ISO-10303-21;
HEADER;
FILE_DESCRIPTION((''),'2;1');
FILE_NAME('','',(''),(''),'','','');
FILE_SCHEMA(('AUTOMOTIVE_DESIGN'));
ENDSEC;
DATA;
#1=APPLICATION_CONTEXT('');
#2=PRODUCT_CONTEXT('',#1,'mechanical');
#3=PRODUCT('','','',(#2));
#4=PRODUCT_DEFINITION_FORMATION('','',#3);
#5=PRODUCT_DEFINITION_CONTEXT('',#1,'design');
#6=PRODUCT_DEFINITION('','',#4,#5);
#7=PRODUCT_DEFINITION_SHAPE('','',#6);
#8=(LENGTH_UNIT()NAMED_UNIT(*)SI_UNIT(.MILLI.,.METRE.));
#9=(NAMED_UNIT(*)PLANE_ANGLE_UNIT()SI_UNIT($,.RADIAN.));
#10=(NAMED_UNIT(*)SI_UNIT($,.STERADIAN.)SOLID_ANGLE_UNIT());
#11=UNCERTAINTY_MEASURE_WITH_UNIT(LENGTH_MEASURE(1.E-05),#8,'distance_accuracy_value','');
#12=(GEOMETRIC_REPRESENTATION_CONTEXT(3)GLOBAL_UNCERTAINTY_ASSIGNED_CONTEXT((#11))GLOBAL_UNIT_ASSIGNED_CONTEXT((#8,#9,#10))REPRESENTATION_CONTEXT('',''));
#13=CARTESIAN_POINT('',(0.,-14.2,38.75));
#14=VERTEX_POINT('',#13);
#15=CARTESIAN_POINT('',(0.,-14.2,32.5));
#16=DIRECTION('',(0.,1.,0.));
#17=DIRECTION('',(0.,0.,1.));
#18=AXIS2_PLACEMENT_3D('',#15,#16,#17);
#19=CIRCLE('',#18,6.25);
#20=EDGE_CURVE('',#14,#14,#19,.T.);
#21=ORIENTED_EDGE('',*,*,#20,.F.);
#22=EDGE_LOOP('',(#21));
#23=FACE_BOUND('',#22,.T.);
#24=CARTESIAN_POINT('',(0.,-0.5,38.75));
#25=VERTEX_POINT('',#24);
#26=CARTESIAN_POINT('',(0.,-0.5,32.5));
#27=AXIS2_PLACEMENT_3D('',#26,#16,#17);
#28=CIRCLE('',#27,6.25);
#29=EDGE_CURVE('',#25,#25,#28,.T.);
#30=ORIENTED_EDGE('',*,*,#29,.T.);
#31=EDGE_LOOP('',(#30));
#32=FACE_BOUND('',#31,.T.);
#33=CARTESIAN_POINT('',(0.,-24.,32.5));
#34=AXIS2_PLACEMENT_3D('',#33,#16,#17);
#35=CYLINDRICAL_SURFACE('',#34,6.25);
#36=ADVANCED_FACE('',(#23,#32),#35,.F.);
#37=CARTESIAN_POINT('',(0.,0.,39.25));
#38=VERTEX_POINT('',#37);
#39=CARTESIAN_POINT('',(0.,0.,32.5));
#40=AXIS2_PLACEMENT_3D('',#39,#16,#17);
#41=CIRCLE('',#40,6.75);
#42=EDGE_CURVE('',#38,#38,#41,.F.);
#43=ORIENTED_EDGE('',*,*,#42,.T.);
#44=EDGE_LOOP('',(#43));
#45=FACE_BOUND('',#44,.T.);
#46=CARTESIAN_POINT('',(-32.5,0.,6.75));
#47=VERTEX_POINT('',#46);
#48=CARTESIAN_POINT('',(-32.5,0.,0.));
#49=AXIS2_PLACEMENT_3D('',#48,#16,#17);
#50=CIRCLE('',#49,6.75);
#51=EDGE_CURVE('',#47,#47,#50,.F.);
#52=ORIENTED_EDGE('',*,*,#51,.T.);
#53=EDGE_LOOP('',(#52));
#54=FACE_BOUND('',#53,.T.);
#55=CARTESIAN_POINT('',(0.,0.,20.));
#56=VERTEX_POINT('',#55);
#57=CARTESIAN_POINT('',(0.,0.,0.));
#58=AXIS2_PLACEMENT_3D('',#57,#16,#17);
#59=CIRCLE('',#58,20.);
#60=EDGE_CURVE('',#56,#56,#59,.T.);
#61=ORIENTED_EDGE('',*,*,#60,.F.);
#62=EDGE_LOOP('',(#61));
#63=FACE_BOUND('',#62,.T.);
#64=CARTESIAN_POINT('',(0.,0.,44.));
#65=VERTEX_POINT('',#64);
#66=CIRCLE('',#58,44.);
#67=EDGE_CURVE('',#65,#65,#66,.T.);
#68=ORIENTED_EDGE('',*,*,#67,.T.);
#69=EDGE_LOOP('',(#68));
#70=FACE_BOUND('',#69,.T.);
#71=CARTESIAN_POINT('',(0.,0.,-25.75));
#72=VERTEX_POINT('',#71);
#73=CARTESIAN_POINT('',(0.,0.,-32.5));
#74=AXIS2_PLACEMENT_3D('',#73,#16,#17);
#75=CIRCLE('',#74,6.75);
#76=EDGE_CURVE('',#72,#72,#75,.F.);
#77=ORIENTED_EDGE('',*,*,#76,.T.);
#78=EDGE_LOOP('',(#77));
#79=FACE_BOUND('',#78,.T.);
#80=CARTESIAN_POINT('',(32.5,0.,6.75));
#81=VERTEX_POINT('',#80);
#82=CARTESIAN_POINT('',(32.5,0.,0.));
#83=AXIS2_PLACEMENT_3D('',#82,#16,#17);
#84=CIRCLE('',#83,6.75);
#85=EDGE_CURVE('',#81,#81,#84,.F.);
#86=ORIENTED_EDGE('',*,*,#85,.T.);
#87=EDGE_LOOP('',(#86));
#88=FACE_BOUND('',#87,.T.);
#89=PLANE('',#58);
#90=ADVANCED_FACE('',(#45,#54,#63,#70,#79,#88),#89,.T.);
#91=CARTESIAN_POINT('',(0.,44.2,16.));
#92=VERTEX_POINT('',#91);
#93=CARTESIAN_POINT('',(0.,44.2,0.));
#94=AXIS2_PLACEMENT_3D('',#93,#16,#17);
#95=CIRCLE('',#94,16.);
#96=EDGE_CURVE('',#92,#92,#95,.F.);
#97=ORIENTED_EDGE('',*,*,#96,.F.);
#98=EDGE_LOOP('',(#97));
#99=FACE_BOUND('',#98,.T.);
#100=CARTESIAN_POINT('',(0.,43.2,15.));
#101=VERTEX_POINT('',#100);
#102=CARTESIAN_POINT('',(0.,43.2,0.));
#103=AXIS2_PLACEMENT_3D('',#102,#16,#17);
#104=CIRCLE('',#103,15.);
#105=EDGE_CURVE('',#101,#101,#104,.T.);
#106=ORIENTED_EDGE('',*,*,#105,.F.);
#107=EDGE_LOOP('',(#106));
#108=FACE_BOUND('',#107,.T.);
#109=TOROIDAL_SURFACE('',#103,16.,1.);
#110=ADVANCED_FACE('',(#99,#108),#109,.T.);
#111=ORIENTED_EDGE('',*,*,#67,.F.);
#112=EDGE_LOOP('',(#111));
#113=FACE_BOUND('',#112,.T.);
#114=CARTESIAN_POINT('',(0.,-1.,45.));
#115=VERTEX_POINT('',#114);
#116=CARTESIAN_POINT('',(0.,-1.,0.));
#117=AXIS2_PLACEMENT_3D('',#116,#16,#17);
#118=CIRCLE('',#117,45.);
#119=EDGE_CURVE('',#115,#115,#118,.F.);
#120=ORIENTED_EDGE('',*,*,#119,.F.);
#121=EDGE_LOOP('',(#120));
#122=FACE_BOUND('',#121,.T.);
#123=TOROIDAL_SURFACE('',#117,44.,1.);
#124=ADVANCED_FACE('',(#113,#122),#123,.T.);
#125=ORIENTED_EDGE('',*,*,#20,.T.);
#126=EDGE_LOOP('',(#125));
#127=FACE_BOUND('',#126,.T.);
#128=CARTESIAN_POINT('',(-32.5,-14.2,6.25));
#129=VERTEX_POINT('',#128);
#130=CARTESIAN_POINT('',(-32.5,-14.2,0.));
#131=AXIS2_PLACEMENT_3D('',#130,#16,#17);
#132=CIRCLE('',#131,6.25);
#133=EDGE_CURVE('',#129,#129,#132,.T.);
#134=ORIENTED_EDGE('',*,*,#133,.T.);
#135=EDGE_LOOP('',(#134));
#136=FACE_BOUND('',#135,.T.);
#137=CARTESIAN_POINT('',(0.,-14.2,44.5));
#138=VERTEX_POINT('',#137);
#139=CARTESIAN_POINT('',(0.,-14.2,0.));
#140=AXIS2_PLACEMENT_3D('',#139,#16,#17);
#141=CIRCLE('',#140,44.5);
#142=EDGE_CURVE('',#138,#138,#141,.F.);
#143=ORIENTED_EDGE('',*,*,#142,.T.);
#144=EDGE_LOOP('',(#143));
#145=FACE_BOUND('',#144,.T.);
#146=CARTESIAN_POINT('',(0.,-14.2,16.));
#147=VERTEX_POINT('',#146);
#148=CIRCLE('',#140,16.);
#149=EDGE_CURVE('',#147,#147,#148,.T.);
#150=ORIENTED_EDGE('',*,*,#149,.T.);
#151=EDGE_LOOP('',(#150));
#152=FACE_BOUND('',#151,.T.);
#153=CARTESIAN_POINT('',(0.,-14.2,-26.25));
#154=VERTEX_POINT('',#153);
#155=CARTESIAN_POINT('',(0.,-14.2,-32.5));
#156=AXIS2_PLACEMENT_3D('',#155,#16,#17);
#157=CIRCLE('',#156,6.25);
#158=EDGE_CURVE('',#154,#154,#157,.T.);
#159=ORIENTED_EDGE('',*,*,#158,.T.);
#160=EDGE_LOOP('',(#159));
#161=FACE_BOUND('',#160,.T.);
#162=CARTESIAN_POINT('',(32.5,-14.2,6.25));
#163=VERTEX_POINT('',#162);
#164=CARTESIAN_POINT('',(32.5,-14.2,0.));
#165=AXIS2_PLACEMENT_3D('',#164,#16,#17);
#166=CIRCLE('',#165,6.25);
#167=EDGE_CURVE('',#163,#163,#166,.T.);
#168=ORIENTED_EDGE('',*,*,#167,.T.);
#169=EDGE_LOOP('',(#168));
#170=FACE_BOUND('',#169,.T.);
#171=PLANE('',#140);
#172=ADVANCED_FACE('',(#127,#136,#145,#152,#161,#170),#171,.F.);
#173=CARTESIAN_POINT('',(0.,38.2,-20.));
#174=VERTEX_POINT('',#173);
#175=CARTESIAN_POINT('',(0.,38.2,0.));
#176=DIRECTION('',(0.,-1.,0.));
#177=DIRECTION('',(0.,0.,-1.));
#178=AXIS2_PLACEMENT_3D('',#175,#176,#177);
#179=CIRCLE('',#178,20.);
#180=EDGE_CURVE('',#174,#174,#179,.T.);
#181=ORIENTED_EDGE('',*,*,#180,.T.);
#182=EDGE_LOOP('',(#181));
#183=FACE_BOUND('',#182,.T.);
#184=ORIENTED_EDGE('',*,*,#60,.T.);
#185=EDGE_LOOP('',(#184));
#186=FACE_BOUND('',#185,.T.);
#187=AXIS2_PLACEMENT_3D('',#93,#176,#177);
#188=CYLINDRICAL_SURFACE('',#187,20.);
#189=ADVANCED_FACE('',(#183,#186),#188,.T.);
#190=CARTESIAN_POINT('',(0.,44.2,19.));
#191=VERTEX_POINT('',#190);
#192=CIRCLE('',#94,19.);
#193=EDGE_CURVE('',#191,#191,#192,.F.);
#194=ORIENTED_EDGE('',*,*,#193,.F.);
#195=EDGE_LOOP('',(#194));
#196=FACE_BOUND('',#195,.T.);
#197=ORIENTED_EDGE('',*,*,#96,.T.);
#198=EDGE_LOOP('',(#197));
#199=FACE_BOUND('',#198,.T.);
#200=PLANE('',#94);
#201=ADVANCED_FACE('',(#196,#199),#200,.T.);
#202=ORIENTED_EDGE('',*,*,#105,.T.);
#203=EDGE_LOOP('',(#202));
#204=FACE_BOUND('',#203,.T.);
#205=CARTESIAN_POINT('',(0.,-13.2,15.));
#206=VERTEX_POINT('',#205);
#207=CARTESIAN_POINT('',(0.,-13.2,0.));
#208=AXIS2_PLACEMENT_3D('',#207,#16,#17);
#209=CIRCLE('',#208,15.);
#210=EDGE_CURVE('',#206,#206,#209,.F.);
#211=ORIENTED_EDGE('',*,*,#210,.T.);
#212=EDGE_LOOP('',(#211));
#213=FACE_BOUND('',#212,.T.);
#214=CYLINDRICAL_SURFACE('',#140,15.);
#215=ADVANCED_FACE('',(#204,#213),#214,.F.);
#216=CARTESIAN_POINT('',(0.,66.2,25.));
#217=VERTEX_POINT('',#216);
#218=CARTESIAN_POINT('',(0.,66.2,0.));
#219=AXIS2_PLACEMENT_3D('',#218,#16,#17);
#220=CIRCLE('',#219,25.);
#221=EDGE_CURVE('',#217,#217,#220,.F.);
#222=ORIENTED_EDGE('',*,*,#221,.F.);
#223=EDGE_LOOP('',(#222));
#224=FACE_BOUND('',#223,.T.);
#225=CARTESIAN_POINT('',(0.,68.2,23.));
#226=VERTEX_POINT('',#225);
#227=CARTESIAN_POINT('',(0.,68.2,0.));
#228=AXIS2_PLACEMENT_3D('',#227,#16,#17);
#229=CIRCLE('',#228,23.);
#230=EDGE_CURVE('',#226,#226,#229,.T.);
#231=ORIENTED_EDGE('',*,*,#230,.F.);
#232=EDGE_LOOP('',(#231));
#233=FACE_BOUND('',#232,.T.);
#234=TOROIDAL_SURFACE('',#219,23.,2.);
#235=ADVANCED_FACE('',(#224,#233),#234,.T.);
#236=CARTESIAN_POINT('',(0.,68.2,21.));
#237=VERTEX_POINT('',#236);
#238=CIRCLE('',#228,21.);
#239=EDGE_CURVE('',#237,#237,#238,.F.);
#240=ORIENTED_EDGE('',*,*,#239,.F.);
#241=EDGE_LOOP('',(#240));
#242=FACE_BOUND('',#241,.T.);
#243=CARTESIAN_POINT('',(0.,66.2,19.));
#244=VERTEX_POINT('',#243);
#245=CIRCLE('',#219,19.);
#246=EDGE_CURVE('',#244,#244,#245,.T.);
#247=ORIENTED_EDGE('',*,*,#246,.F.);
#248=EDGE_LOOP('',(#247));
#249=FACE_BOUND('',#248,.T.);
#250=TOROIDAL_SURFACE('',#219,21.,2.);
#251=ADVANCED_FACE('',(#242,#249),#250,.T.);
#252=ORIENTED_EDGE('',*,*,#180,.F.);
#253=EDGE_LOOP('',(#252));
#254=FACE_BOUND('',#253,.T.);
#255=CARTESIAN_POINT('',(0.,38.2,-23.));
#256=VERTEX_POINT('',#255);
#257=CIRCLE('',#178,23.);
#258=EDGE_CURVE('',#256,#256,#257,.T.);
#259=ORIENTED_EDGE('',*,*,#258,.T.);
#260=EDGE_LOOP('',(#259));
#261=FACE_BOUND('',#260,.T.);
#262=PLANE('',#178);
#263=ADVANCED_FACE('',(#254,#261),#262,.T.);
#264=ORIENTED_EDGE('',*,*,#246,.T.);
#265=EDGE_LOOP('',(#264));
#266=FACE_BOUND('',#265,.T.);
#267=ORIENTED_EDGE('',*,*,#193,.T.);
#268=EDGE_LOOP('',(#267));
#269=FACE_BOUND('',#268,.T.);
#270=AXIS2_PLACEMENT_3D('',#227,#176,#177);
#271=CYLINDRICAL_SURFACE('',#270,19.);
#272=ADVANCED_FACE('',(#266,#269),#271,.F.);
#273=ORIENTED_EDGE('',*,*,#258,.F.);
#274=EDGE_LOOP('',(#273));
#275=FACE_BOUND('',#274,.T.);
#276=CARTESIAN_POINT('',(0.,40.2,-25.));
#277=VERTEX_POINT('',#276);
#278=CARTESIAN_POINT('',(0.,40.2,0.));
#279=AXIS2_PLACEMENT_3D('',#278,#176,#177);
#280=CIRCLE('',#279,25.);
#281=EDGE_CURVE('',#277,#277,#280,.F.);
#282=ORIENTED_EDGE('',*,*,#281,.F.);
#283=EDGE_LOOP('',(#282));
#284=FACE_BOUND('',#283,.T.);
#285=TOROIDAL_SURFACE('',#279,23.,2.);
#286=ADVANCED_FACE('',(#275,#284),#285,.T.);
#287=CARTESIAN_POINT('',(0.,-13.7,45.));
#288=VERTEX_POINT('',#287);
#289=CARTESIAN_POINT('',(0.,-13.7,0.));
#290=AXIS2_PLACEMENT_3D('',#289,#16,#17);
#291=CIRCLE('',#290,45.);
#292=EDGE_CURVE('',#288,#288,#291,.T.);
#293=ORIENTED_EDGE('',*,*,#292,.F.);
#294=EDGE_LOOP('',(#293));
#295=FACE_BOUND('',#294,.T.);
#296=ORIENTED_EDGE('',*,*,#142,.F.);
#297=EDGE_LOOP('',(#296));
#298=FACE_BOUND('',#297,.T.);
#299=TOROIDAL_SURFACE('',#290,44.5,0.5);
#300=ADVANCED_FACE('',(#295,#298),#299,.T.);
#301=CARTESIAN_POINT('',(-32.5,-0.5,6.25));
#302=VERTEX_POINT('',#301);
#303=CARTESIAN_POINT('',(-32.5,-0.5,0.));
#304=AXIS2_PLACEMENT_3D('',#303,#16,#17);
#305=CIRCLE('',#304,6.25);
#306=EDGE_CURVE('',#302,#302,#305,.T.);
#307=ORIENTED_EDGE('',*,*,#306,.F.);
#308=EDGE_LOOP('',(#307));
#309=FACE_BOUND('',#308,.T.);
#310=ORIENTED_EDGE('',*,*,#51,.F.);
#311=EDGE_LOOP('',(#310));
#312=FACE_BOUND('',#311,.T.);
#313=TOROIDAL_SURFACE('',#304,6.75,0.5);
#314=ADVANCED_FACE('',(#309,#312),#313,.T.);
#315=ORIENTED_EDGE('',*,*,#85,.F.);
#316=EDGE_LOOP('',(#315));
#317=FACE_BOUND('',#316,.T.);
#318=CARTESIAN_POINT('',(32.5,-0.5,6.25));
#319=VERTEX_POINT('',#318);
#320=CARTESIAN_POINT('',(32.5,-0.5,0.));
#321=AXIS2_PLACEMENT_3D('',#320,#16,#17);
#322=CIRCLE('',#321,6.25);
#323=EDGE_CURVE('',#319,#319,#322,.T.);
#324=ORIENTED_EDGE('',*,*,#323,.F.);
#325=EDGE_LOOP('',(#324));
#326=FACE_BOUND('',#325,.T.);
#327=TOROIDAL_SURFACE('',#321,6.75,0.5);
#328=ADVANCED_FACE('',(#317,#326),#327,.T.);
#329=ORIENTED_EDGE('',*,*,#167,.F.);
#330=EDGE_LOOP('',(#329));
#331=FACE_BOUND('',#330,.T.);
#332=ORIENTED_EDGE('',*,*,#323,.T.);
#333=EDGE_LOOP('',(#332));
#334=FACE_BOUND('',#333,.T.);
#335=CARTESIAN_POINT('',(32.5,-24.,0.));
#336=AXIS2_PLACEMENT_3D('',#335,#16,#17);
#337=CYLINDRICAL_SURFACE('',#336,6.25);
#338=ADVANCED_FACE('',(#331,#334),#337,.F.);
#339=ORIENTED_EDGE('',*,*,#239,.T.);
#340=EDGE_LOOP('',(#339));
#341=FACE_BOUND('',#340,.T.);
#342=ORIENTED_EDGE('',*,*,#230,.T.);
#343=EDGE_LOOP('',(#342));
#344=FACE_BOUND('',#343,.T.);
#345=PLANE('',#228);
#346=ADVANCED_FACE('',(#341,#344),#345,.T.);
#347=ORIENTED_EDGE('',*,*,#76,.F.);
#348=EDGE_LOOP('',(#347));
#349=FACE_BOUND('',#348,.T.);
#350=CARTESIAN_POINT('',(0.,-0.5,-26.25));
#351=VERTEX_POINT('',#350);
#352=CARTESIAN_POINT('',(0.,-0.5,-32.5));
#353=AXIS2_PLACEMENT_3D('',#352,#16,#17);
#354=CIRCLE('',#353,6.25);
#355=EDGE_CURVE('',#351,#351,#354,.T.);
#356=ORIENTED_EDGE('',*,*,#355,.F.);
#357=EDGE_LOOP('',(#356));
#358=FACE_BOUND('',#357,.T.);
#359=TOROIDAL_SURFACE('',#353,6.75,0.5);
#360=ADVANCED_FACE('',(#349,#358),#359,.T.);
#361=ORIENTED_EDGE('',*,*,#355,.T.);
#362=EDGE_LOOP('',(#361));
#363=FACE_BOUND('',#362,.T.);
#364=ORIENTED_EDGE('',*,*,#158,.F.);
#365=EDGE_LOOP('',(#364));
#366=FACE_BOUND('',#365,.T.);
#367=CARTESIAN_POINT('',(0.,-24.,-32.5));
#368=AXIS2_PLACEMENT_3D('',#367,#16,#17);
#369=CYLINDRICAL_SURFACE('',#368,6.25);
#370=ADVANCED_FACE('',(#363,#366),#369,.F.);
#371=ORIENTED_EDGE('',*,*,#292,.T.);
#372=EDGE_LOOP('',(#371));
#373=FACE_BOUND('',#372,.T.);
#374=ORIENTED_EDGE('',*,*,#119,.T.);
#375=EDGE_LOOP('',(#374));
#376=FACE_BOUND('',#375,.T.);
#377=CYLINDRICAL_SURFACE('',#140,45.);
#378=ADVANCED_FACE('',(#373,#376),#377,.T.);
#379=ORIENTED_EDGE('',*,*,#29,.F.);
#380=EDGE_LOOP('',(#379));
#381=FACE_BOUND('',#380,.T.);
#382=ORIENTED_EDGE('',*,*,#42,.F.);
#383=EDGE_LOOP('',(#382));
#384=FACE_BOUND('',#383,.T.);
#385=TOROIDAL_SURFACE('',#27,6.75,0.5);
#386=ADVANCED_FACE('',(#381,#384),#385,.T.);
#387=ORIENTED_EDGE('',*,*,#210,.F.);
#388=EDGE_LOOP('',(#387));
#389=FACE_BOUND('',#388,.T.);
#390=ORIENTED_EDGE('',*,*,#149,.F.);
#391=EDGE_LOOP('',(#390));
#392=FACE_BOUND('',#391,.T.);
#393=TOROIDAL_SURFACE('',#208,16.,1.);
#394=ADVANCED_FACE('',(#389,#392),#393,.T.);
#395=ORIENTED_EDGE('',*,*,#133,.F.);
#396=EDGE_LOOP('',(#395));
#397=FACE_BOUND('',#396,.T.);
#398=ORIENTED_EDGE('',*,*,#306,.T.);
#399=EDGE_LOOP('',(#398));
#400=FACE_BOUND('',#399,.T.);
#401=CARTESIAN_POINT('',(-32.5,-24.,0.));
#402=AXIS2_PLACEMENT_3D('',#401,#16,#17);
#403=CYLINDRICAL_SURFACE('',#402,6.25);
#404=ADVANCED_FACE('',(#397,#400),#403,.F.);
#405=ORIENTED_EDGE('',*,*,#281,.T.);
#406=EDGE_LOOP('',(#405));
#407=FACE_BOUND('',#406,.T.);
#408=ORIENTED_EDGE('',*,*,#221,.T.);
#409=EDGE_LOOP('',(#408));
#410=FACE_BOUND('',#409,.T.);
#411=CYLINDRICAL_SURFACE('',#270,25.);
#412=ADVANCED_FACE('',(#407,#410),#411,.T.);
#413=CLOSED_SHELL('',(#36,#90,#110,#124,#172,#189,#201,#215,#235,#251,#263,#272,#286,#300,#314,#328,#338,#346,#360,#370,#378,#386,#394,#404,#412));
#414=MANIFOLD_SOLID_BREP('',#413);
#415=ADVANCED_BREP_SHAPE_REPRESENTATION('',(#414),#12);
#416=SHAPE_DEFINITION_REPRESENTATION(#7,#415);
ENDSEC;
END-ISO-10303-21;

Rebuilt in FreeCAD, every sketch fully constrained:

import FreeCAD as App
import Part
import Sketcher

V = App.Vector
Q = App.Units.Quantity


def edges_at(feature, points):
    """Names of the edges that pass closest to the given points."""
    edges = feature.Shape.Edges
    near = lambda p: min(range(len(edges)), key=lambda i: edges[i].distToShape(Part.Vertex(*p))[0])
    return sorted({f"Edge{near(p) + 1}" for p in points})

doc = App.newDocument("Part")
params = doc.addObject("Spreadsheet::Sheet", "Params")
for row, (alias, value) in enumerate([
    ("sketch1_diameter", "90 mm"),
    ("sketch1_diameter2", "30 mm"),
    ("pad1_length", "14.2 mm"),
    ("sketch2_diameter", "40 mm"),
    ("sketch2_diameter2", "30 mm"),
    ("pad2_length", "44.2 mm"),
    ("sketch3_diameter", "50 mm"),
    ("sketch3_diameter2", "38 mm"),
    ("pad3_length", "24 mm"),
    ("sketch4_diameter", "50 mm"),
    ("sketch4_diameter2", "30 mm"),
    ("pad4_length", "6 mm"),
    ("sketch5_diameter", "12.5 mm"),
    ("pocket1_length", "24 mm"),
    ("fillet_radius", "1 mm"),
    ("fillet2_radius", "2 mm"),
    ("fillet3_radius", "1 mm"),
    ("fillet4_radius", "0.5 mm"),
    ("fillet5_radius", "0.5 mm"),
    ("fillet6_radius", "1 mm"),
], start=1):
    params.set(f"A{row}", alias)
    params.set(f"B{row}", "=" + value)
    params.setAlias(f"B{row}", alias)

body = doc.addObject("PartDesign::Body", "Body")

# Sketch on XZ plane
sketch1 = body.newObject("Sketcher::SketchObject", "Sketch")
sketch1.AttachmentSupport = (doc.getObject("XZ_Plane"), [""])
sketch1.MapMode = "FlatFace"
sketch1.addGeometry([
    Part.Circle(V(0, 0, 0), V(0, 0, 1), 45),
    Part.Circle(V(0, 0, 0), V(0, 0, 1), 15),
], False)
sketch1.addConstraint([
    Sketcher.Constraint("Coincident", 0, 3, -1, 1),
    Sketcher.Constraint("Coincident", 1, 3, -1, 1),
    Sketcher.Constraint("Diameter", 0, Q("90 mm")),
    Sketcher.Constraint("Diameter", 1, Q("30 mm")),
])
sketch1.setExpression("Constraints[2]", "Params.sketch1_diameter")
sketch1.setExpression("Constraints[3]", "Params.sketch1_diameter2")
pad1 = body.newObject("PartDesign::Pad", "Pad")
pad1.Profile = sketch1
pad1.setExpression("Length", "Params.pad1_length")

# Sketch on XZ plane
sketch2 = body.newObject("Sketcher::SketchObject", "Sketch001")
sketch2.AttachmentSupport = (doc.getObject("XZ_Plane"), [""])
sketch2.MapMode = "FlatFace"
sketch2.AttachmentOffset = App.Placement(V(0, 0, -44.2), App.Rotation())
sketch2.addGeometry([
    Part.Circle(V(0, 0, 0), V(0, 0, 1), 20),
    Part.Circle(V(0, 0, 0), V(0, 0, 1), 15),
], False)
sketch2.addConstraint([
    Sketcher.Constraint("Coincident", 0, 3, -1, 1),
    Sketcher.Constraint("Coincident", 1, 3, -1, 1),
    Sketcher.Constraint("Diameter", 0, Q("40 mm")),
    Sketcher.Constraint("Diameter", 1, Q("30 mm")),
])
sketch2.setExpression("Constraints[2]", "Params.sketch2_diameter")
sketch2.setExpression("Constraints[3]", "Params.sketch2_diameter2")
pad2 = body.newObject("PartDesign::Pad", "Pad001")
pad2.Profile = sketch2
pad2.setExpression("Length", "Params.pad2_length")

# Sketch on XZ plane
sketch3 = body.newObject("Sketcher::SketchObject", "Sketch002")
sketch3.AttachmentSupport = (doc.getObject("XZ_Plane"), [""])
sketch3.MapMode = "FlatFace"
sketch3.AttachmentOffset = App.Placement(V(0, 0, -68.2), App.Rotation())
sketch3.addGeometry([
    Part.Circle(V(0, 0, 0), V(0, 0, 1), 25),
    Part.Circle(V(0, 0, 0), V(0, 0, 1), 19),
], False)
sketch3.addConstraint([
    Sketcher.Constraint("Coincident", 0, 3, -1, 1),
    Sketcher.Constraint("Coincident", 1, 3, -1, 1),
    Sketcher.Constraint("Diameter", 0, Q("50 mm")),
    Sketcher.Constraint("Diameter", 1, Q("38 mm")),
])
sketch3.setExpression("Constraints[2]", "Params.sketch3_diameter")
sketch3.setExpression("Constraints[3]", "Params.sketch3_diameter2")
pad3 = body.newObject("PartDesign::Pad", "Pad002")
pad3.Profile = sketch3
pad3.setExpression("Length", "Params.pad3_length")

# Sketch on XZ plane
sketch4 = body.newObject("Sketcher::SketchObject", "Sketch003")
sketch4.AttachmentSupport = (doc.getObject("XZ_Plane"), [""])
sketch4.MapMode = "FlatFace"
sketch4.AttachmentOffset = App.Placement(V(0, 0, -44.2), App.Rotation())
sketch4.addGeometry([
    Part.Circle(V(0, 0, 0), V(0, 0, 1), 25),
    Part.Circle(V(0, 0, 0), V(0, 0, 1), 15),
], False)
sketch4.addConstraint([
    Sketcher.Constraint("Coincident", 0, 3, -1, 1),
    Sketcher.Constraint("Coincident", 1, 3, -1, 1),
    Sketcher.Constraint("Diameter", 0, Q("50 mm")),
    Sketcher.Constraint("Diameter", 1, Q("30 mm")),
])
sketch4.setExpression("Constraints[2]", "Params.sketch4_diameter")
sketch4.setExpression("Constraints[3]", "Params.sketch4_diameter2")
pad4 = body.newObject("PartDesign::Pad", "Pad003")
pad4.Profile = sketch4
pad4.setExpression("Length", "Params.pad4_length")

# Sketch on XZ plane
sketch5 = body.newObject("Sketcher::SketchObject", "Sketch004")
sketch5.AttachmentSupport = (doc.getObject("XZ_Plane"), [""])
sketch5.MapMode = "FlatFace"
sketch5.addGeometry([
    Part.Circle(V(0, -32, 0), V(0, 0, 1), 6),
    Part.Circle(V(32, 0, 0), V(0, 0, 1), 6),
    Part.Circle(V(0, 32, 0), V(0, 0, 1), 6),
    Part.Circle(V(-32, 0, 0), V(0, 0, 1), 6),
], False)
sketch5.addConstraint([
    Sketcher.Constraint("Equal", 0, 1),
    Sketcher.Constraint("Equal", 1, 2),
    Sketcher.Constraint("Equal", 2, 3),
    Sketcher.Constraint("Symmetric", 0, 3, 2, 3, -1, 1),
    Sketcher.Constraint("Symmetric", 1, 3, 3, 3, -1, 1),
    Sketcher.Constraint("PointOnObject", 0, 3, -2),
    Sketcher.Constraint("PointOnObject", 1, 3, -1),
    Sketcher.Constraint("Diameter", 0, Q("12.5 mm")),
    Sketcher.Constraint("DistanceY", 0, 3, 2, 3, Q("65 mm")),
    Sketcher.Constraint("DistanceX", 3, 3, 1, 3, Q("65 mm")),
])
sketch5.setExpression("Constraints[7]", "Params.sketch5_diameter")
pocket1 = body.newObject("PartDesign::Pocket", "Pocket")
pocket1.Profile = sketch5
pocket1.setExpression("Length", "Params.pocket1_length")
pocket1.Reversed = True
doc.recompute()

fillet = body.newObject("PartDesign::Fillet", "Fillet")
fillet.Base = (pocket1, edges_at(pocket1, [(0, 0, -45)]))
fillet.setExpression("Radius", "Params.fillet_radius")
doc.recompute()

fillet2 = body.newObject("PartDesign::Fillet", "Fillet001")
fillet2.Base = (fillet, edges_at(fillet, [(0, 68.2, -19), (0, 68.2, -25), (0, 38.2, 25)]))
fillet2.setExpression("Radius", "Params.fillet2_radius")
doc.recompute()

fillet3 = body.newObject("PartDesign::Fillet", "Fillet002")
fillet3.Base = (fillet2, edges_at(fillet2, [(0, 44.2, -15)]))
fillet3.setExpression("Radius", "Params.fillet3_radius")
doc.recompute()

fillet4 = body.newObject("PartDesign::Fillet", "Fillet003")
fillet4.Base = (fillet3, edges_at(fillet3, [
    (0, 0, -38.75),
    (32.5, 0, -6.25),
    (0, 0, 26.25),
    (-32.5, 0, -6.25),
]))
fillet4.setExpression("Radius", "Params.fillet4_radius")
doc.recompute()

fillet5 = body.newObject("PartDesign::Fillet", "Fillet004")
fillet5.Base = (fillet4, edges_at(fillet4, [(0, -14.2, -45)]))
fillet5.setExpression("Radius", "Params.fillet5_radius")
doc.recompute()

fillet6 = body.newObject("PartDesign::Fillet", "Fillet005")
fillet6.Base = (fillet5, edges_at(fillet5, [(0, -14.2, -15)]))
fillet6.setExpression("Radius", "Params.fillet6_radius")

doc.recompute()
